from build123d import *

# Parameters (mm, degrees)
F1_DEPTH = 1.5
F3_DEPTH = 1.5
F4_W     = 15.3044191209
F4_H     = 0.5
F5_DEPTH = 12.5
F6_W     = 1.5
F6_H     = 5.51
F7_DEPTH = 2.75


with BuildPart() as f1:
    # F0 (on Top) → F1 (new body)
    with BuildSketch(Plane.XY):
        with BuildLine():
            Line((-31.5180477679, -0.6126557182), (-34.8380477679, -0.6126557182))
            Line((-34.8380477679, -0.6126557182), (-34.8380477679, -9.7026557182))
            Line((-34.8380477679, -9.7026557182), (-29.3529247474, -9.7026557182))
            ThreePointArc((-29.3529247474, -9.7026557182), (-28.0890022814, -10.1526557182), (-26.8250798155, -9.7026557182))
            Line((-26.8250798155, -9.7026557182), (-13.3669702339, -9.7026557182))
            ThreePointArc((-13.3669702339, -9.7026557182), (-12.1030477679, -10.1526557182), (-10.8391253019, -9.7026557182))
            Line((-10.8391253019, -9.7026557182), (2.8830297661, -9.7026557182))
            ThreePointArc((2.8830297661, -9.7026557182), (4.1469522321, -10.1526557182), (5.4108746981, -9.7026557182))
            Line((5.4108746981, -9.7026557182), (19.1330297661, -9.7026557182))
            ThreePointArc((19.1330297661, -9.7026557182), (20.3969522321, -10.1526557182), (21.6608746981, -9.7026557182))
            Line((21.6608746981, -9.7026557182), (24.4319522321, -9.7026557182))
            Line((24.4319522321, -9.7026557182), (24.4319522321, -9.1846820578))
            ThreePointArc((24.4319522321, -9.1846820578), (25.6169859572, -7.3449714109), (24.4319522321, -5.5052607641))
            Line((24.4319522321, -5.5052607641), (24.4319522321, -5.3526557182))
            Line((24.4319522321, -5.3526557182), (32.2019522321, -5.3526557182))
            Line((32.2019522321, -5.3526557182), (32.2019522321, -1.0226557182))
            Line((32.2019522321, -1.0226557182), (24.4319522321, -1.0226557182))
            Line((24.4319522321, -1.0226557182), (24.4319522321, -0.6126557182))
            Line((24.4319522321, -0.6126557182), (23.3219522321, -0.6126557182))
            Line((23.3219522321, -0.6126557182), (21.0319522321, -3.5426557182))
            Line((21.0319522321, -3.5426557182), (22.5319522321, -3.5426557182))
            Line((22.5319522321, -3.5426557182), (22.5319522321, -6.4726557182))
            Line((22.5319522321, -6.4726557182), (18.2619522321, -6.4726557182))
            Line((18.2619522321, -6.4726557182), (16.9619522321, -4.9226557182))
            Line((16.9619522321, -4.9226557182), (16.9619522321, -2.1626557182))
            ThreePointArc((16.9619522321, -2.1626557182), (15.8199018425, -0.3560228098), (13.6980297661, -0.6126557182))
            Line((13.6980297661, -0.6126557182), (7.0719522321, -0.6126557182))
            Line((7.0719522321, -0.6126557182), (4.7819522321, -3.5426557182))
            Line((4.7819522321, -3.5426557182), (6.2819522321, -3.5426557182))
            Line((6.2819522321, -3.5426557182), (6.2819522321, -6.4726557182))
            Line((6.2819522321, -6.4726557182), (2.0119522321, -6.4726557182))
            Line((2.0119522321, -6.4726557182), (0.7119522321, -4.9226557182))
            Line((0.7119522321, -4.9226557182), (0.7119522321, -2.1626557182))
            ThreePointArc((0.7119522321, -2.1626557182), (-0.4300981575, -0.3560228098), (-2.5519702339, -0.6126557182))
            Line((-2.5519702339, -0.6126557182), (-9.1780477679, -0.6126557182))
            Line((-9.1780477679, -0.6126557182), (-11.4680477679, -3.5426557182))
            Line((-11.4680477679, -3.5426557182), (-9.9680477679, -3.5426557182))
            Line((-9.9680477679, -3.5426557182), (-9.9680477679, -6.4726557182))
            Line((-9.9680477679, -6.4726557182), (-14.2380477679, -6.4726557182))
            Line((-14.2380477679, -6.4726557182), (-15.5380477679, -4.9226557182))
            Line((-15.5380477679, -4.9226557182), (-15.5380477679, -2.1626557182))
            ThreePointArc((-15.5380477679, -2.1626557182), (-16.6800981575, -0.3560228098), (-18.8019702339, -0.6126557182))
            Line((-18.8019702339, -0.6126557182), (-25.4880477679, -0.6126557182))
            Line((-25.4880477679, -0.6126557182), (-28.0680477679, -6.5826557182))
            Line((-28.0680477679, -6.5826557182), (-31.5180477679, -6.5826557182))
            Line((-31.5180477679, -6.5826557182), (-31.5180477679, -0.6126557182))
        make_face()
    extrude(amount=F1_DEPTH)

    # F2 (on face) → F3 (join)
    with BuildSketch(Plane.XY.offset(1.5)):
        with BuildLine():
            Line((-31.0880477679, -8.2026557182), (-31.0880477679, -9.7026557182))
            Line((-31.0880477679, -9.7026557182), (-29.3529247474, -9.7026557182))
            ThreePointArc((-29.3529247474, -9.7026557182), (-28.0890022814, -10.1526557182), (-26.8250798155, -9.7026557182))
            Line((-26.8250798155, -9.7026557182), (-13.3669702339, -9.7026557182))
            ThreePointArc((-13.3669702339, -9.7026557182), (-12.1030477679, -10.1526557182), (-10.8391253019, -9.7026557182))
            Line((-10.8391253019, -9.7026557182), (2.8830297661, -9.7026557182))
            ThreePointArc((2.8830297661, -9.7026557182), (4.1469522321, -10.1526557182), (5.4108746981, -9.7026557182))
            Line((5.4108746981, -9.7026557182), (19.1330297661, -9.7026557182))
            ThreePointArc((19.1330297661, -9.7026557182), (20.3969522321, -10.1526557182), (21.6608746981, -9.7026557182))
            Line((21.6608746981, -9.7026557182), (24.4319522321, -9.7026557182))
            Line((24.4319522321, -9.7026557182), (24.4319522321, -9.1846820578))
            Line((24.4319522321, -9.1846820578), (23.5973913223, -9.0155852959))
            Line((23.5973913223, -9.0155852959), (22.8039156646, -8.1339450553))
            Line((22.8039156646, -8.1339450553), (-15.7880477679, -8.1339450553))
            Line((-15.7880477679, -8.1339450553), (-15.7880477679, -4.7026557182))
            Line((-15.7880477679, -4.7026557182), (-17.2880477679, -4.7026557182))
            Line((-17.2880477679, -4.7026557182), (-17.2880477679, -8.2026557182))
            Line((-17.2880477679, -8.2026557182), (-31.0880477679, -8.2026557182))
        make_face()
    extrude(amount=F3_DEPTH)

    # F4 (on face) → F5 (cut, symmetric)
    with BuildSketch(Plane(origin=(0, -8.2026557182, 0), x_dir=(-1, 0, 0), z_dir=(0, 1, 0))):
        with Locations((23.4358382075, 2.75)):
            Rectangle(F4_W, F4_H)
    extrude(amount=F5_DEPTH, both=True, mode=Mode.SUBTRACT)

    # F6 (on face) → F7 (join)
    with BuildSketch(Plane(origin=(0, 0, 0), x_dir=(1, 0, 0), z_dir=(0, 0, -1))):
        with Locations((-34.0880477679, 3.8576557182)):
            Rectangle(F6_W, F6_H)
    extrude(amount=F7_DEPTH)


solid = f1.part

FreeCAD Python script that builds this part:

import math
import FreeCAD as App
import Part
import Sketcher
Q = App.Units.Quantity

doc = App.newDocument("Part")
body = doc.addObject("PartDesign::Body", "Body")

# Sketch on XY plane
sketch1 = doc.addObject("Sketcher::SketchObject", "Sketch")
body.addObject(sketch1)
sketch1.AttachmentSupport = (doc.XY_Plane, [""])
sketch1.MapMode = "FlatFace"
sketch1.addGeometry(Part.LineSegment(App.Vector(-31.518048, -0.612656, 0), App.Vector(-34.838048, -0.612656, 0)), False)
sketch1.addGeometry(Part.LineSegment(App.Vector(-34.838048, -0.612656, 0), App.Vector(-34.838048, -9.702656, 0)), False)
sketch1.addGeometry(Part.LineSegment(App.Vector(-34.838048, -9.702656, 0), App.Vector(-29.352925, -9.702656, 0)), False)
sketch1.addGeometry(Part.ArcOfCircle(Part.Circle(App.Vector(-28.089002, -8.152656, 0), App.Vector(0, 0, 1), 2), math.radians(-129.194967), math.radians(-50.805033)), False)
sketch1.addGeometry(Part.LineSegment(App.Vector(-26.82508, -9.702656, 0), App.Vector(-13.36697, -9.702656, 0)), False)
sketch1.addGeometry(Part.ArcOfCircle(Part.Circle(App.Vector(-12.103048, -8.152656, 0), App.Vector(0, 0, 1), 2), math.radians(-129.194967), math.radians(-50.805033)), False)
sketch1.addGeometry(Part.LineSegment(App.Vector(-10.839125, -9.702656, 0), App.Vector(2.88303, -9.702656, 0)), False)
sketch1.addGeometry(Part.ArcOfCircle(Part.Circle(App.Vector(4.146952, -8.152656, 0), App.Vector(0, 0, 1), 2), math.radians(-129.194967), math.radians(-50.805033)), False)
sketch1.addGeometry(Part.LineSegment(App.Vector(5.410875, -9.702656, 0), App.Vector(19.13303, -9.702656, 0)), False)
sketch1.addGeometry(Part.ArcOfCircle(Part.Circle(App.Vector(20.396952, -8.152656, 0), App.Vector(0, 0, 1), 2), math.radians(-129.194967), math.radians(-50.805033)), False)
sketch1.addGeometry(Part.LineSegment(App.Vector(21.660875, -9.702656, 0), App.Vector(24.431952, -9.702656, 0)), False)
sketch1.addGeometry(Part.LineSegment(App.Vector(24.431952, -9.702656, 0), App.Vector(24.431952, -9.184682, 0)), False)
sketch1.addGeometry(Part.ArcOfCircle(Part.Circle(App.Vector(23.596436, -7.344971, 0), App.Vector(0, 0, 1), 2.02055), math.radians(-65.57452), math.radians(65.57452)), False)
sketch1.addGeometry(Part.LineSegment(App.Vector(24.431952, -5.505261, 0), App.Vector(24.431952, -5.352656, 0)), False)
sketch1.addGeometry(Part.LineSegment(App.Vector(24.431952, -5.352656, 0), App.Vector(32.201952, -5.352656, 0)), False)
sketch1.addGeometry(Part.LineSegment(App.Vector(32.201952, -5.352656, 0), App.Vector(32.201952, -1.022656, 0)), False)
sketch1.addGeometry(Part.LineSegment(App.Vector(32.201952, -1.022656, 0), App.Vector(24.431952, -1.022656, 0)), False)
sketch1.addGeometry(Part.LineSegment(App.Vector(24.431952, -1.022656, 0), App.Vector(24.431952, -0.612656, 0)), False)
sketch1.addGeometry(Part.LineSegment(App.Vector(24.431952, -0.612656, 0), App.Vector(23.321952, -0.612656, 0)), False)
sketch1.addGeometry(Part.LineSegment(App.Vector(23.321952, -0.612656, 0), App.Vector(21.031952, -3.542656, 0)), False)
sketch1.addGeometry(Part.LineSegment(App.Vector(21.031952, -3.542656, 0), App.Vector(22.531952, -3.542656, 0)), False)
sketch1.addGeometry(Part.LineSegment(App.Vector(22.531952, -3.542656, 0), App.Vector(22.531952, -6.472656, 0)), False)
sketch1.addGeometry(Part.LineSegment(App.Vector(22.531952, -6.472656, 0), App.Vector(18.261952, -6.472656, 0)), False)
sketch1.addGeometry(Part.LineSegment(App.Vector(18.261952, -6.472656, 0), App.Vector(16.961952, -4.922656, 0)), False)
sketch1.addGeometry(Part.LineSegment(App.Vector(16.961952, -4.922656, 0), App.Vector(16.961952, -2.162656, 0)), False)
sketch1.addGeometry(Part.ArcOfCircle(Part.Circle(App.Vector(14.961952, -2.162656, 0), App.Vector(0, 0, 1), 2), math.radians(0), math.radians(129.194967)), False)
sketch1.addGeometry(Part.LineSegment(App.Vector(13.69803, -0.612656, 0), App.Vector(7.071952, -0.612656, 0)), False)
sketch1.addGeometry(Part.LineSegment(App.Vector(7.071952, -0.612656, 0), App.Vector(4.781952, -3.542656, 0)), False)
sketch1.addGeometry(Part.LineSegment(App.Vector(4.781952, -3.542656, 0), App.Vector(6.281952, -3.542656, 0)), False)
sketch1.addGeometry(Part.LineSegment(App.Vector(6.281952, -3.542656, 0), App.Vector(6.281952, -6.472656, 0)), False)
sketch1.addGeometry(Part.LineSegment(App.Vector(6.281952, -6.472656, 0), App.Vector(2.011952, -6.472656, 0)), False)
sketch1.addGeometry(Part.LineSegment(App.Vector(2.011952, -6.472656, 0), App.Vector(0.711952, -4.922656, 0)), False)
sketch1.addGeometry(Part.LineSegment(App.Vector(0.711952, -4.922656, 0), App.Vector(0.711952, -2.162656, 0)), False)
sketch1.addGeometry(Part.ArcOfCircle(Part.Circle(App.Vector(-1.288048, -2.162656, 0), App.Vector(0, 0, 1), 2), math.radians(0), math.radians(129.194967)), False)
sketch1.addGeometry(Part.LineSegment(App.Vector(-2.55197, -0.612656, 0), App.Vector(-9.178048, -0.612656, 0)), False)
sketch1.addGeometry(Part.LineSegment(App.Vector(-9.178048, -0.612656, 0), App.Vector(-11.468048, -3.542656, 0)), False)
sketch1.addGeometry(Part.LineSegment(App.Vector(-11.468048, -3.542656, 0), App.Vector(-9.968048, -3.542656, 0)), False)
sketch1.addGeometry(Part.LineSegment(App.Vector(-9.968048, -3.542656, 0), App.Vector(-9.968048, -6.472656, 0)), False)
sketch1.addGeometry(Part.LineSegment(App.Vector(-9.968048, -6.472656, 0), App.Vector(-14.238048, -6.472656, 0)), False)
sketch1.addGeometry(Part.LineSegment(App.Vector(-14.238048, -6.472656, 0), App.Vector(-15.538048, -4.922656, 0)), False)
sketch1.addGeometry(Part.LineSegment(App.Vector(-15.538048, -4.922656, 0), App.Vector(-15.538048, -2.162656, 0)), False)
sketch1.addGeometry(Part.ArcOfCircle(Part.Circle(App.Vector(-17.538048, -2.162656, 0), App.Vector(0, 0, 1), 2), math.radians(0), math.radians(129.194967)), False)
sketch1.addGeometry(Part.LineSegment(App.Vector(-18.80197, -0.612656, 0), App.Vector(-25.488048, -0.612656, 0)), False)
sketch1.addGeometry(Part.LineSegment(App.Vector(-25.488048, -0.612656, 0), App.Vector(-28.068048, -6.582656, 0)), False)
sketch1.addGeometry(Part.LineSegment(App.Vector(-28.068048, -6.582656, 0), App.Vector(-31.518048, -6.582656, 0)), False)
sketch1.addGeometry(Part.LineSegment(App.Vector(-31.518048, -6.582656, 0), App.Vector(-31.518048, -0.612656, 0)), False)
sketch1.addConstraint(Sketcher.Constraint("Coincident", 0, 2, 1, 1))
sketch1.addConstraint(Sketcher.Constraint("Coincident", 1, 2, 2, 1))
sketch1.addConstraint(Sketcher.Constraint("Coincident", 2, 2, 3, 1))
sketch1.addConstraint(Sketcher.Constraint("Coincident", 3, 2, 4, 1))
sketch1.addConstraint(Sketcher.Constraint("Coincident", 4, 2, 5, 1))
sketch1.addConstraint(Sketcher.Constraint("Coincident", 5, 2, 6, 1))
sketch1.addConstraint(Sketcher.Constraint("Coincident", 6, 2, 7, 1))
sketch1.addConstraint(Sketcher.Constraint("Coincident", 7, 2, 8, 1))
sketch1.addConstraint(Sketcher.Constraint("Coincident", 8, 2, 9, 1))
sketch1.addConstraint(Sketcher.Constraint("Coincident", 9, 2, 10, 1))
sketch1.addConstraint(Sketcher.Constraint("Coincident", 10, 2, 11, 1))
sketch1.addConstraint(Sketcher.Constraint("Coincident", 11, 2, 12, 1))
sketch1.addConstraint(Sketcher.Constraint("Coincident", 12, 2, 13, 1))
sketch1.addConstraint(Sketcher.Constraint("Coincident", 13, 2, 14, 1))
sketch1.addConstraint(Sketcher.Constraint("Coincident", 14, 2, 15, 1))
sketch1.addConstraint(Sketcher.Constraint("Coincident", 15, 2, 16, 1))
sketch1.addConstraint(Sketcher.Constraint("Coincident", 16, 2, 17, 1))
sketch1.addConstraint(Sketcher.Constraint("Coincident", 17, 2, 18, 1))
sketch1.addConstraint(Sketcher.Constraint("Coincident", 18, 2, 19, 1))
sketch1.addConstraint(Sketcher.Constraint("Coincident", 19, 2, 20, 1))
sketch1.addConstraint(Sketcher.Constraint("Coincident", 20, 2, 21, 1))
sketch1.addConstraint(Sketcher.Constraint("Coincident", 21, 2, 22, 1))
sketch1.addConstraint(Sketcher.Constraint("Coincident", 22, 2, 23, 1))
sketch1.addConstraint(Sketcher.Constraint("Coincident", 23, 2, 24, 1))
sketch1.addConstraint(Sketcher.Constraint("Tangent", 24, 2, 25, 1))
sketch1.addConstraint(Sketcher.Constraint("Coincident", 25, 2, 26, 1))
sketch1.addConstraint(Sketcher.Constraint("Coincident", 26, 2, 27, 1))
sketch1.addConstraint(Sketcher.Constraint("Coincident", 27, 2, 28, 1))
sketch1.addConstraint(Sketcher.Constraint("Coincident", 28, 2, 29, 1))
sketch1.addConstraint(Sketcher.Constraint("Coincident", 29, 2, 30, 1))
sketch1.addConstraint(Sketcher.Constraint("Coincident", 30, 2, 31, 1))
sketch1.addConstraint(Sketcher.Constraint("Coincident", 31, 2, 32, 1))
sketch1.addConstraint(Sketcher.Constraint("Tangent", 32, 2, 33, 1))
sketch1.addConstraint(Sketcher.Constraint("Coincident", 33, 2, 34, 1))
sketch1.addConstraint(Sketcher.Constraint("Coincident", 34, 2, 35, 1))
sketch1.addConstraint(Sketcher.Constraint("Coincident", 35, 2, 36, 1))
sketch1.addConstraint(Sketcher.Constraint("Coincident", 36, 2, 37, 1))
sketch1.addConstraint(Sketcher.Constraint("Coincident", 37, 2, 38, 1))
sketch1.addConstraint(Sketcher.Constraint("Coincident", 38, 2, 39, 1))
sketch1.addConstraint(Sketcher.Constraint("Coincident", 39, 2, 40, 1))
sketch1.addConstraint(Sketcher.Constraint("Tangent", 40, 2, 41, 1))
sketch1.addConstraint(Sketcher.Constraint("Coincident", 41, 2, 42, 1))
sketch1.addConstraint(Sketcher.Constraint("Coincident", 42, 2, 43, 1))
sketch1.addConstraint(Sketcher.Constraint("Coincident", 43, 2, 44, 1))
sketch1.addConstraint(Sketcher.Constraint("Coincident", 44, 2, 45, 1))
sketch1.addConstraint(Sketcher.Constraint("Coincident", 45, 2, 0, 1))
sketch1.addConstraint(Sketcher.Constraint("Horizontal", 0))
sketch1.addConstraint(Sketcher.Constraint("Vertical", 1))
sketch1.addConstraint(Sketcher.Constraint("Horizontal", 2))
sketch1.addConstraint(Sketcher.Constraint("Horizontal", 4))
sketch1.addConstraint(Sketcher.Constraint("Horizontal", 6))
sketch1.addConstraint(Sketcher.Constraint("Horizontal", 8))
sketch1.addConstraint(Sketcher.Constraint("Horizontal", 10))
sketch1.addConstraint(Sketcher.Constraint("Vertical", 11))
sketch1.addConstraint(Sketcher.Constraint("Vertical", 13))
sketch1.addConstraint(Sketcher.Constraint("Horizontal", 14))
sketch1.addConstraint(Sketcher.Constraint("Vertical", 15))
sketch1.addConstraint(Sketcher.Constraint("Horizontal", 16))
sketch1.addConstraint(Sketcher.Constraint("Vertical", 17))
sketch1.addConstraint(Sketcher.Constraint("Horizontal", 18))
sketch1.addConstraint(Sketcher.Constraint("Horizontal", 20))
sketch1.addConstraint(Sketcher.Constraint("Vertical", 21))
sketch1.addConstraint(Sketcher.Constraint("Horizontal", 22))
sketch1.addConstraint(Sketcher.Constraint("Vertical", 24))
sketch1.addConstraint(Sketcher.Constraint("Horizontal", 26))
sketch1.addConstraint(Sketcher.Constraint("Horizontal", 28))
sketch1.addConstraint(Sketcher.Constraint("Vertical", 29))
sketch1.addConstraint(Sketcher.Constraint("Horizontal", 30))
sketch1.addConstraint(Sketcher.Constraint("Vertical", 32))
sketch1.addConstraint(Sketcher.Constraint("Horizontal", 34))
sketch1.addConstraint(Sketcher.Constraint("Horizontal", 36))
sketch1.addConstraint(Sketcher.Constraint("Vertical", 37))
sketch1.addConstraint(Sketcher.Constraint("Horizontal", 38))
sketch1.addConstraint(Sketcher.Constraint("Vertical", 40))
sketch1.addConstraint(Sketcher.Constraint("Horizontal", 42))
sketch1.addConstraint(Sketcher.Constraint("Horizontal", 44))
sketch1.addConstraint(Sketcher.Constraint("Vertical", 45))
sketch1.addConstraint(Sketcher.Constraint("Equal", 3, 5))
sketch1.addConstraint(Sketcher.Constraint("Equal", 5, 7))
sketch1.addConstraint(Sketcher.Constraint("Equal", 7, 9))
sketch1.addConstraint(Sketcher.Constraint("Equal", 9, 25))
sketch1.addConstraint(Sketcher.Constraint("Equal", 25, 33))
sketch1.addConstraint(Sketcher.Constraint("Equal", 33, 41))
sketch1.addConstraint(Sketcher.Constraint("Parallel", 19, 27))
sketch1.addConstraint(Sketcher.Constraint("Parallel", 23, 31))
sketch1.addConstraint(Sketcher.Constraint("Parallel", 27, 35))
sketch1.addConstraint(Sketcher.Constraint("Parallel", 31, 39))
sketch1.addConstraint(Sketcher.Constraint("Horizontal", 3, 3, 5, 3))
sketch1.addConstraint(Sketcher.Constraint("Horizontal", 5, 3, 7, 3))
sketch1.addConstraint(Sketcher.Constraint("Horizontal", 7, 3, 9, 3))
sketch1.addConstraint(Sketcher.Constraint("Horizontal", 25, 3, 33, 3))
sketch1.addConstraint(Sketcher.Constraint("Horizontal", 33, 3, 41, 3))
sketch1.addConstraint(Sketcher.Constraint("Horizontal", 2, 2, 3, 2))
sketch1.addConstraint(Sketcher.Constraint("Horizontal", 4, 2, 5, 2))
sketch1.addConstraint(Sketcher.Constraint("Horizontal", 6, 2, 7, 2))
sketch1.addConstraint(Sketcher.Constraint("Horizontal", 8, 2, 9, 2))
sketch1.addConstraint(Sketcher.Constraint("Horizontal", 0, 2, 17, 2))
sketch1.addConstraint(Sketcher.Constraint("Horizontal", 18, 2, 25, 2))
sketch1.addConstraint(Sketcher.Constraint("Horizontal", 20, 2, 27, 2))
sketch1.addConstraint(Sketcher.Constraint("Horizontal", 22, 2, 29, 2))
sketch1.addConstraint(Sketcher.Constraint("Horizontal", 23, 2, 31, 2))
sketch1.addConstraint(Sketcher.Constraint("Horizontal", 26, 2, 33, 2))
sketch1.addConstraint(Sketcher.Constraint("Horizontal", 28, 2, 35, 2))
sketch1.addConstraint(Sketcher.Constraint("Horizontal", 30, 2, 37, 2))
sketch1.addConstraint(Sketcher.Constraint("Horizontal", 31, 2, 39, 2))
sketch1.addConstraint(Sketcher.Constraint("Horizontal", 34, 2, 41, 2))
sketch1.addConstraint(Sketcher.Constraint("Vertical", 11, 2, 12, 2))
sketch1.addConstraint(Sketcher.Constraint("Vertical", 13, 2, 16, 2))
sketch1.addConstraint(Sketcher.Constraint("Equal", 6, 8))
sketch1.addConstraint(Sketcher.Constraint("Equal", 20, 28))
sketch1.addConstraint(Sketcher.Constraint("Equal", 22, 30))
sketch1.addConstraint(Sketcher.Constraint("Equal", 26, 34))
sketch1.addConstraint(Sketcher.Constraint("Equal", 28, 36))
sketch1.addConstraint(Sketcher.Constraint("Equal", 30, 38))
sketch1.addConstraint(Sketcher.Constraint("Radius", 3, Q("2 mm")))
sketch1.addConstraint(Sketcher.Constraint("DistanceX", 20, 1, 20, 2, Q("1.5 mm")))
sketch1.addConstraint(Sketcher.Constraint("DistanceX", 0, 2, 0, 1, Q("3.32 mm")))
sketch1.addConstraint(Sketcher.Constraint("DistanceX", 14, 1, 14, 2, Q("7.77 mm")))
sketch1.addConstraint(Sketcher.Constraint("DistanceX", 18, 2, 18, 1, Q("1.11 mm")))
sketch1.addConstraint(Sketcher.Constraint("DistanceX", 22, 2, 22, 1, Q("4.27 mm")))
sketch1.addConstraint(Sketcher.Constraint("DistanceX", 44, 2, 44, 1, Q("3.45 mm")))
sketch1.addConstraint(Sketcher.Constraint("DistanceY", 1, 2, 1, 1, Q("9.09 mm")))
sketch1.addConstraint(Sketcher.Constraint("DistanceY", 15, 1, 15, 2, Q("4.33 mm")))
sketch1.addConstraint(Sketcher.Constraint("DistanceY", 17, 1, 17, 2, Q("0.41 mm")))
sketch1.addConstraint(Sketcher.Constraint("DistanceY", 21, 2, 21, 1, Q("2.93 mm")))
sketch1.addConstraint(Sketcher.Constraint("DistanceY", 24, 1, 24, 2, Q("2.76 mm")))
sketch1.addConstraint(Sketcher.Constraint("DistanceY", 45, 1, 45, 2, Q("5.97 mm")))
sketch1.addConstraint(Sketcher.Constraint("DistanceX", 5, 3, 9, 3, Q("32.5 mm")))
sketch1.addConstraint(Sketcher.Constraint("DistanceX", 41, 3, 25, 3, Q("32.5 mm")))
sketch1.addConstraint(Sketcher.Constraint("DistanceX", 0, 2, 41, 3, Q("17.3 mm")))
sketch1.addConstraint(Sketcher.Constraint("DistanceY", 9, 3, 13, 2, Q("2.8 mm")))
sketch1.addConstraint(Sketcher.Constraint("DistanceX", 19, 2, 13, 2, Q("3.4 mm")))
sketch1.addConstraint(Sketcher.Constraint("DistanceX", 23, 2, 22, 2, Q("1.3 mm")))
sketch1.addConstraint(Sketcher.Constraint("Radius", 12, Q("2.02055 mm")))
sketch1.addConstraint(Sketcher.Constraint("DistanceY", 9, 3, 25, 3, Q("5.99 mm")))
sketch1.addConstraint(Sketcher.Constraint("DistanceY", 19, 2, 18, 2, Q("2.93 mm")))
sketch1.addConstraint(Sketcher.Constraint("DistanceX", 42, 2, 41, 3, Q("7.95 mm")))
sketch1.addConstraint(Sketcher.Constraint("DistanceX", 25, 3, 9, 3, Q("5.435 mm")))
sketch1.addConstraint(Sketcher.Constraint("DistanceX", 4, 1, 4, 2, Q("13.45811 mm")))
sketch1.addConstraint(Sketcher.Constraint("DistanceY", 11, 1, 11, 2, Q("0.517974 mm")))
sketch1.addConstraint(Sketcher.Constraint("DistanceY", 13, 1, 13, 2, Q("0.152605 mm")))
sketch1.addConstraint(Sketcher.Constraint("DistanceY", 12, 3, -1, 1, Q("7.344971 mm")))
sketch1.addConstraint(Sketcher.Constraint("DistanceX", 3, 2, -1, 1, Q("26.82508 mm")))
pad1 = doc.addObject("PartDesign::Pad", "Pad")
body.addObject(pad1)
pad1.Profile = sketch1
pad1.Length = 1.5

# Sketch on XY plane
sketch2 = doc.addObject("Sketcher::SketchObject", "Sketch001")
body.addObject(sketch2)
sketch2.AttachmentSupport = (doc.XY_Plane, [""])
sketch2.MapMode = "FlatFace"
sketch2.AttachmentOffset = App.Placement(App.Vector(0, 0, 1.5), App.Rotation())
sketch2.addGeometry(Part.LineSegment(App.Vector(-31.088048, -8.202656, 0), App.Vector(-31.088048, -9.702656, 0)), False)
sketch2.addGeometry(Part.LineSegment(App.Vector(-31.088048, -9.702656, 0), App.Vector(-29.352925, -9.702656, 0)), False)
sketch2.addGeometry(Part.ArcOfCircle(Part.Circle(App.Vector(-28.089002, -8.152656, 0), App.Vector(0, 0, 1), 2), math.radians(-129.194967), math.radians(-50.805033)), False)
sketch2.addGeometry(Part.LineSegment(App.Vector(-26.82508, -9.702656, 0), App.Vector(-13.36697, -9.702656, 0)), False)
sketch2.addGeometry(Part.ArcOfCircle(Part.Circle(App.Vector(-12.103048, -8.152656, 0), App.Vector(0, 0, 1), 2), math.radians(-129.194967), math.radians(-50.805033)), False)
sketch2.addGeometry(Part.LineSegment(App.Vector(-10.839125, -9.702656, 0), App.Vector(2.88303, -9.702656, 0)), False)
sketch2.addGeometry(Part.ArcOfCircle(Part.Circle(App.Vector(4.146952, -8.152656, 0), App.Vector(0, 0, 1), 2), math.radians(-129.194967), math.radians(-50.805033)), False)
sketch2.addGeometry(Part.LineSegment(App.Vector(5.410875, -9.702656, 0), App.Vector(19.13303, -9.702656, 0)), False)
sketch2.addGeometry(Part.ArcOfCircle(Part.Circle(App.Vector(20.396952, -8.152656, 0), App.Vector(0, 0, 1), 2), math.radians(-129.194967), math.radians(-50.805033)), False)
sketch2.addGeometry(Part.LineSegment(App.Vector(21.660875, -9.702656, 0), App.Vector(24.431952, -9.702656, 0)), False)
sketch2.addGeometry(Part.LineSegment(App.Vector(24.431952, -9.702656, 0), App.Vector(24.431952, -9.184682, 0)), False)
sketch2.addGeometry(Part.LineSegment(App.Vector(24.431952, -9.184682, 0), App.Vector(23.597391, -9.015585, 0)), False)
sketch2.addGeometry(Part.LineSegment(App.Vector(23.597391, -9.015585, 0), App.Vector(22.803916, -8.133945, 0)), False)
sketch2.addGeometry(Part.LineSegment(App.Vector(22.803916, -8.133945, 0), App.Vector(-15.788048, -8.133945, 0)), False)
sketch2.addGeometry(Part.LineSegment(App.Vector(-15.788048, -8.133945, 0), App.Vector(-15.788048, -4.702656, 0)), False)
sketch2.addGeometry(Part.LineSegment(App.Vector(-15.788048, -4.702656, 0), App.Vector(-17.288048, -4.702656, 0)), False)
sketch2.addGeometry(Part.LineSegment(App.Vector(-17.288048, -4.702656, 0), App.Vector(-17.288048, -8.202656, 0)), False)
sketch2.addGeometry(Part.LineSegment(App.Vector(-17.288048, -8.202656, 0), App.Vector(-31.088048, -8.202656, 0)), False)
sketch2.addConstraint(Sketcher.Constraint("Coincident", 0, 2, 1, 1))
sketch2.addConstraint(Sketcher.Constraint("Coincident", 1, 2, 2, 1))
sketch2.addConstraint(Sketcher.Constraint("Coincident", 2, 2, 3, 1))
sketch2.addConstraint(Sketcher.Constraint("Coincident", 3, 2, 4, 1))
sketch2.addConstraint(Sketcher.Constraint("Coincident", 4, 2, 5, 1))
sketch2.addConstraint(Sketcher.Constraint("Coincident", 5, 2, 6, 1))
sketch2.addConstraint(Sketcher.Constraint("Coincident", 6, 2, 7, 1))
sketch2.addConstraint(Sketcher.Constraint("Coincident", 7, 2, 8, 1))
sketch2.addConstraint(Sketcher.Constraint("Coincident", 8, 2, 9, 1))
sketch2.addConstraint(Sketcher.Constraint("Coincident", 9, 2, 10, 1))
sketch2.addConstraint(Sketcher.Constraint("Coincident", 10, 2, 11, 1))
sketch2.addConstraint(Sketcher.Constraint("Coincident", 11, 2, 12, 1))
sketch2.addConstraint(Sketcher.Constraint("Coincident", 12, 2, 13, 1))
sketch2.addConstraint(Sketcher.Constraint("Coincident", 13, 2, 14, 1))
sketch2.addConstraint(Sketcher.Constraint("Coincident", 14, 2, 15, 1))
sketch2.addConstraint(Sketcher.Constraint("Coincident", 15, 2, 16, 1))
sketch2.addConstraint(Sketcher.Constraint("Coincident", 16, 2, 17, 1))
sketch2.addConstraint(Sketcher.Constraint("Coincident", 17, 2, 0, 1))
sketch2.addConstraint(Sketcher.Constraint("Vertical", 0))
sketch2.addConstraint(Sketcher.Constraint("Horizontal", 1))
sketch2.addConstraint(Sketcher.Constraint("Horizontal", 3))
sketch2.addConstraint(Sketcher.Constraint("Horizontal", 5))
sketch2.addConstraint(Sketcher.Constraint("Horizontal", 7))
sketch2.addConstraint(Sketcher.Constraint("Horizontal", 9))
sketch2.addConstraint(Sketcher.Constraint("Vertical", 10))
sketch2.addConstraint(Sketcher.Constraint("Horizontal", 13))
sketch2.addConstraint(Sketcher.Constraint("Vertical", 14))
sketch2.addConstraint(Sketcher.Constraint("Horizontal", 15))
sketch2.addConstraint(Sketcher.Constraint("Vertical", 16))
sketch2.addConstraint(Sketcher.Constraint("Horizontal", 17))
sketch2.addConstraint(Sketcher.Constraint("Equal", 2, 4))
sketch2.addConstraint(Sketcher.Constraint("Equal", 4, 6))
sketch2.addConstraint(Sketcher.Constraint("Equal", 6, 8))
sketch2.addConstraint(Sketcher.Constraint("Horizontal", 2, 3, 4, 3))
sketch2.addConstraint(Sketcher.Constraint("Horizontal", 4, 3, 6, 3))
sketch2.addConstraint(Sketcher.Constraint("Horizontal", 6, 3, 8, 3))
sketch2.addConstraint(Sketcher.Constraint("Horizontal", 1, 2, 2, 2))
sketch2.addConstraint(Sketcher.Constraint("Horizontal", 3, 2, 4, 2))
sketch2.addConstraint(Sketcher.Constraint("Horizontal", 5, 2, 6, 2))
sketch2.addConstraint(Sketcher.Constraint("Horizontal", 7, 2, 8, 2))
sketch2.addConstraint(Sketcher.Constraint("Equal", 5, 7))
sketch2.addConstraint(Sketcher.Constraint("Equal", 15, 0))
sketch2.addConstraint(Sketcher.Constraint("Radius", 2, Q("2 mm")))
sketch2.addConstraint(Sketcher.Constraint("DistanceX", 15, 2, 15, 1, Q("1.5 mm")))
sketch2.addConstraint(Sketcher.Constraint("DistanceX", 17, 2, 17, 1, Q("13.8 mm")))
sketch2.addConstraint(Sketcher.Constraint("DistanceY", 16, 2, 16, 1, Q("3.5 mm")))
sketch2.addConstraint(Sketcher.Constraint("DistanceX", 4, 3, 8, 3, Q("32.5 mm")))
sketch2.addConstraint(Sketcher.Constraint("DistanceY", 0, 2, 2, 3, Q("1.55 mm")))
sketch2.addConstraint(Sketcher.Constraint("DistanceX", 0, 2, 4, 3, Q("18.985 mm")))
sketch2.addConstraint(Sketcher.Constraint("DistanceX", 8, 3, 9, 2, Q("4.035 mm")))
sketch2.addConstraint(Sketcher.Constraint("DistanceX", 3, 1, 3, 2, Q("13.45811 mm")))
sketch2.addConstraint(Sketcher.Constraint("DistanceY", 14, 1, 14, 2, Q("3.431289 mm")))
sketch2.addConstraint(Sketcher.Constraint("Distance", 11, Q("0.85152 mm")))
sketch2.addConstraint(Sketcher.Constraint("DistanceX", 13, 2, 13, 1, Q("38.591963 mm")))
sketch2.addConstraint(Sketcher.Constraint("DistanceY", 10, 1, 10, 2, Q("0.517974 mm")))
sketch2.addConstraint(Sketcher.Constraint("DistanceX", 2, 2, -1, 1, Q("26.82508 mm")))
sketch2.addConstraint(Sketcher.Constraint("DistanceX", -1, 1, 11, 2, Q("23.597391 mm")))
sketch2.addConstraint(Sketcher.Constraint("DistanceY", 2, 3, -1, 1, Q("8.152656 mm")))
pad2 = doc.addObject("PartDesign::Pad", "Pad001")
body.addObject(pad2)
pad2.Profile = sketch2
pad2.Length = 1.5

# Sketch on XZ plane
sketch3 = doc.addObject("Sketcher::SketchObject", "Sketch002")
body.addObject(sketch3)
sketch3.AttachmentSupport = (doc.XZ_Plane, [""])
sketch3.MapMode = "FlatFace"
sketch3.AttachmentOffset = App.Placement(App.Vector(0, 0, 8.202656), App.Rotation())
sketch3.addGeometry(Part.LineSegment(App.Vector(-15.783629, 3, 0), App.Vector(-15.783629, 2.5, 0)), False)
sketch3.addGeometry(Part.LineSegment(App.Vector(-15.783629, 2.5, 0), App.Vector(-31.088048, 2.5, 0)), False)
sketch3.addGeometry(Part.LineSegment(App.Vector(-31.088048, 2.5, 0), App.Vector(-31.088048, 3, 0)), False)
sketch3.addGeometry(Part.LineSegment(App.Vector(-31.088048, 3, 0), App.Vector(-15.783629, 3, 0)), False)
sketch3.addConstraint(Sketcher.Constraint("Coincident", 0, 2, 1, 1))
sketch3.addConstraint(Sketcher.Constraint("Coincident", 1, 2, 2, 1))
sketch3.addConstraint(Sketcher.Constraint("Coincident", 2, 2, 3, 1))
sketch3.addConstraint(Sketcher.Constraint("Coincident", 3, 2, 0, 1))
sketch3.addConstraint(Sketcher.Constraint("Vertical", 0))
sketch3.addConstraint(Sketcher.Constraint("Horizontal", 1))
sketch3.addConstraint(Sketcher.Constraint("Vertical", 2))
sketch3.addConstraint(Sketcher.Constraint("Horizontal", 3))
sketch3.addConstraint(Sketcher.Constraint("DistanceY", 0, 2, 0, 1, Q("0.5 mm")))
sketch3.addConstraint(Sketcher.Constraint("DistanceY", -1, 1, 2, 2, Q("3 mm")))
sketch3.addConstraint(Sketcher.Constraint("DistanceX", 1, 2, 1, 1, Q("15.304419 mm")))
sketch3.addConstraint(Sketcher.Constraint("DistanceX", 0, 2, -1, 1, Q("15.783629 mm")))
pocket1 = doc.addObject("PartDesign::Pocket", "Pocket")
body.addObject(pocket1)
pocket1.Profile = sketch3
pocket1.Length = 25
pocket1.Midplane = True

# Sketch on XY plane
sketch4 = doc.addObject("Sketcher::SketchObject", "Sketch003")
body.addObject(sketch4)
sketch4.AttachmentSupport = (doc.XY_Plane, [""])
sketch4.MapMode = "FlatFace"
sketch4.addGeometry(Part.LineSegment(App.Vector(-34.838048, -6.612656, 0), App.Vector(-34.838048, -1.102656, 0)), False)
sketch4.addGeometry(Part.LineSegment(App.Vector(-34.838048, -1.102656, 0), App.Vector(-33.338048, -1.102656, 0)), False)
sketch4.addGeometry(Part.LineSegment(App.Vector(-33.338048, -1.102656, 0), App.Vector(-33.338048, -6.612656, 0)), False)
sketch4.addGeometry(Part.LineSegment(App.Vector(-33.338048, -6.612656, 0), App.Vector(-34.838048, -6.612656, 0)), False)
sketch4.addConstraint(Sketcher.Constraint("Coincident", 0, 2, 1, 1))
sketch4.addConstraint(Sketcher.Constraint("Coincident", 1, 2, 2, 1))
sketch4.addConstraint(Sketcher.Constraint("Coincident", 2, 2, 3, 1))
sketch4.addConstraint(Sketcher.Constraint("Coincident", 3, 2, 0, 1))
sketch4.addConstraint(Sketcher.Constraint("Vertical", 0))
sketch4.addConstraint(Sketcher.Constraint("Horizontal", 1))
sketch4.addConstraint(Sketcher.Constraint("Vertical", 2))
sketch4.addConstraint(Sketcher.Constraint("Horizontal", 3))
sketch4.addConstraint(Sketcher.Constraint("DistanceX", 1, 1, 1, 2, Q("1.5 mm")))
sketch4.addConstraint(Sketcher.Constraint("DistanceY", 0, 1, 0, 2, Q("5.51 mm")))
sketch4.addConstraint(Sketcher.Constraint("DistanceX", 0, 2, -1, 1, Q("34.838048 mm")))
sketch4.addConstraint(Sketcher.Constraint("DistanceY", 0, 2, -1, 1, Q("1.102656 mm")))
pad3 = doc.addObject("PartDesign::Pad", "Pad002")
body.addObject(pad3)
pad3.Profile = sketch4
pad3.Length = 2.75
pad3.Reversed = True

doc.recompute()
